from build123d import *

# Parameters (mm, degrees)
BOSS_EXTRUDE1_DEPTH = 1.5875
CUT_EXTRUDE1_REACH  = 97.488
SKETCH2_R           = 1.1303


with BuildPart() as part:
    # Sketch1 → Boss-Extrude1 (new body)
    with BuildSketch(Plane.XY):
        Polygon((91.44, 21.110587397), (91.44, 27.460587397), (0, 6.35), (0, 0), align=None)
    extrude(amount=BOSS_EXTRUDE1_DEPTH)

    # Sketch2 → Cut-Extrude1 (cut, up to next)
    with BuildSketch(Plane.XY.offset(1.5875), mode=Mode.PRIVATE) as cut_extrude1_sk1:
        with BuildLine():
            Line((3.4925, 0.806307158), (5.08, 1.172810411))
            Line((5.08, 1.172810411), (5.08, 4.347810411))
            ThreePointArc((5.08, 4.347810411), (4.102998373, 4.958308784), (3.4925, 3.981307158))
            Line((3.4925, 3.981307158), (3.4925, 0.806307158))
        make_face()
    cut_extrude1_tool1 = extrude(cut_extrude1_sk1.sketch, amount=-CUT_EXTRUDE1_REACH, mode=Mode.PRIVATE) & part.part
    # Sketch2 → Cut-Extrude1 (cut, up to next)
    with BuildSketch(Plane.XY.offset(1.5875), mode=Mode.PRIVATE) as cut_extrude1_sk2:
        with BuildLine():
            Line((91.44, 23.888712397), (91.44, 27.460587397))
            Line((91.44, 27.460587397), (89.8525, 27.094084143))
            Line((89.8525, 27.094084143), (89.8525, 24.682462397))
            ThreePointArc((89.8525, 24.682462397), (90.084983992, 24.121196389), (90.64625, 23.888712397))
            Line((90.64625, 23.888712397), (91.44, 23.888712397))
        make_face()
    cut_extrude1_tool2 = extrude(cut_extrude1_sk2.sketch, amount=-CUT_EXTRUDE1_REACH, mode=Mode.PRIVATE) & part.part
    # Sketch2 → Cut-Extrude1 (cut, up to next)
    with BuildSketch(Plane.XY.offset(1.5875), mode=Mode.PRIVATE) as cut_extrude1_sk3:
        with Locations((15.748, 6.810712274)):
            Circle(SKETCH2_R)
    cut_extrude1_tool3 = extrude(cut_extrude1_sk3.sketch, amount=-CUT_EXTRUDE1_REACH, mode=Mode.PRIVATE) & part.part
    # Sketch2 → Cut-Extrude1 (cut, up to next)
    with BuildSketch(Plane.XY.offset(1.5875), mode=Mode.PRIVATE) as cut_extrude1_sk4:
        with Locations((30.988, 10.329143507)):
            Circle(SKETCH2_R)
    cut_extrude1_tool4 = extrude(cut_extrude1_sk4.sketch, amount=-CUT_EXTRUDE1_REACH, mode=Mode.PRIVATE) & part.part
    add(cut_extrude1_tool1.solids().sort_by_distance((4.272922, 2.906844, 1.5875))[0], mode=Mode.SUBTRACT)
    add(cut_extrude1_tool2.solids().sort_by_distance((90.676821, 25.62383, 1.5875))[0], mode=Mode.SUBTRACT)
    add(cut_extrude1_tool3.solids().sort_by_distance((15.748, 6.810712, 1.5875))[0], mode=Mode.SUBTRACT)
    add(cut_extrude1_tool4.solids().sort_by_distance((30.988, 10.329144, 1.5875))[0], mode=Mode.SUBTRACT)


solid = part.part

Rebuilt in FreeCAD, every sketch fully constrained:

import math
import FreeCAD as App
import Part
import Sketcher

V = App.Vector
Q = App.Units.Quantity


def add_polygon(sketch, points):
    """Adds a closed chain of lines whose ends are joined by coincident constraints."""
    first, n = sketch.GeometryCount, len(points)
    for a, b in zip(points, points[1:] + points[:1]):
        sketch.addGeometry(Part.LineSegment(App.Vector(*a, 0), App.Vector(*b, 0)), False)
    for i in range(n):
        sketch.addConstraint(Sketcher.Constraint("Coincident", first + i, 2, first + (i + 1) % n, 1))

doc = App.newDocument("Part")
params = doc.addObject("Spreadsheet::Sheet", "Params")
for row, (alias, value) in enumerate([
    ("sketch1_height", "0.25 in"),
    ("pad1_length", "0.0625 in"),
    ("sketch2_height", "0.125 in"),
    ("sketch3_radius", "0.03125 in"),
    ("sketch3_width", "0.03125 in"),
    ("sketch3_height", "0.140625 in"),
    ("sketch4_diameter", "0.089 in"),
    ("sketch5_diameter", "0.089 in"),
], start=1):
    params.set(f"A{row}", alias)
    params.set(f"B{row}", "=" + value)
    params.setAlias(f"B{row}", alias)

body = doc.addObject("PartDesign::Body", "Body")

sketch1 = body.newObject("Sketcher::SketchObject", "Sketch")
sketch1.AttachmentSupport = (doc.getObject("XY_Plane"), [""])
sketch1.MapMode = "FlatFace"
add_polygon(sketch1, [(91.44, 21.110587), (91.44, 27.460587), (0, 6.35), (0, 0)])
sketch1.addConstraint([
    Sketcher.Constraint("Vertical", 0),
    Sketcher.Constraint("Vertical", 2),
    Sketcher.Constraint("Coincident", 2, 2, -1, 1),
    Sketcher.Constraint("Parallel", 1, 3),
    Sketcher.Constraint("Angle", 1, Q("-167 deg")),
    Sketcher.Constraint("DistanceY", 0, 1, 0, 2, Q("0.25 in")),
    Sketcher.Constraint("DistanceX", -1, 1, 0, 2, Q("3.6 in")),
])
sketch1.setExpression("Constraints[9]", "Params.sketch1_height")
pad1 = body.newObject("PartDesign::Pad", "Pad")
pad1.Profile = sketch1
pad1.setExpression("Length", "Params.pad1_length")

sketch2 = body.newObject("Sketcher::SketchObject", "Sketch001")
sketch2.AttachmentSupport = (doc.getObject("XY_Plane"), [""])
sketch2.MapMode = "FlatFace"
sketch2.AttachmentOffset = App.Placement(V(0, 0, 0.0625 * 25.4), App.Rotation())
sketch2.addGeometry([
    Part.LineSegment(V(3.4925, 0.806307, 0), V(5.08, 1.17281, 0)),
    Part.LineSegment(V(5.08, 1.17281, 0), V(5.08, 4.34781, 0)),
    Part.ArcOfCircle(Part.Circle(V(4.28625, 4.164559, 0), V(0, 0, 1), 0.814629), math.radians(13), math.radians(193)),
    Part.LineSegment(V(3.4925, 3.981307, 0), V(3.4925, 0.806307, 0)),
], False)
sketch2.addConstraint([
    Sketcher.Constraint("Coincident", 0, 2, 1, 1),
    Sketcher.Constraint("Coincident", 1, 2, 2, 1),
    Sketcher.Constraint("Coincident", 2, 2, 3, 1),
    Sketcher.Constraint("Coincident", 3, 2, 0, 1),
    Sketcher.Constraint("Vertical", 1),
    Sketcher.Constraint("Vertical", 3),
    Sketcher.Constraint("Equal", 1, 3),
    Sketcher.Constraint("Angle", 0, Q("13 deg")),
    Sketcher.Constraint("DistanceX", -1, 1, 0, 2, Q("0.2 in")),
    Sketcher.Constraint("DistanceY", 1, 1, 1, 2, Q("0.125 in")),
    Sketcher.Constraint("Radius", 2, Q("0.814629 mm")),
    Sketcher.Constraint("DistanceX", 2, 3, 0, 2, Q("0.03125 in")),
    Sketcher.Constraint("DistanceY", -1, 1, 2, 3, Q("4.164559 mm")),
])
sketch2.setExpression("Constraints[9]", "Params.sketch2_height")
pocket1 = body.newObject("PartDesign::Pocket", "Pocket")
pocket1.Profile = sketch2
pocket1.Type = "UpToFirst"

sketch3 = body.newObject("Sketcher::SketchObject", "Sketch002")
sketch3.AttachmentSupport = (doc.getObject("XY_Plane"), [""])
sketch3.MapMode = "FlatFace"
sketch3.AttachmentOffset = App.Placement(V(0, 0, 0.0625 * 25.4), App.Rotation())
sketch3.addGeometry([
    Part.LineSegment(V(91.44, 23.888712, 0), V(91.44, 27.460587, 0)),
    Part.LineSegment(V(91.44, 27.460587, 0), V(89.8525, 27.094084, 0)),
    Part.LineSegment(V(89.8525, 27.094084, 0), V(89.8525, 24.682462, 0)),
    Part.ArcOfCircle(Part.Circle(V(90.64625, 24.682462, 0), V(0, 0, 1), 0.79375), math.radians(180), math.radians(270)),
    Part.LineSegment(V(90.64625, 23.888712, 0), V(91.44, 23.888712, 0)),
], False)
sketch3.addConstraint([
    Sketcher.Constraint("Coincident", 0, 2, 1, 1),
    Sketcher.Constraint("Coincident", 1, 2, 2, 1),
    Sketcher.Constraint("Tangent", 2, 2, 3, 1),
    Sketcher.Constraint("Tangent", 3, 2, 4, 1),
    Sketcher.Constraint("Coincident", 4, 2, 0, 1),
    Sketcher.Constraint("Vertical", 0),
    Sketcher.Constraint("Vertical", 2),
    Sketcher.Constraint("Horizontal", 4),
    Sketcher.Constraint("Angle", 1, Q("-167 deg")),
    Sketcher.Constraint("Radius", 3, Q("0.03125 in")),
    Sketcher.Constraint("DistanceX", -1, 1, 0, 2, Q("3.6 in")),
    Sketcher.Constraint("DistanceX", 4, 1, 4, 2, Q("0.03125 in")),
    Sketcher.Constraint("DistanceY", 0, 1, 0, 2, Q("0.140625 in")),
    Sketcher.Constraint("DistanceY", -1, 1, 3, 3, Q("24.682462 mm")),
])
sketch3.setExpression("Constraints[9]", "Params.sketch3_radius")
sketch3.setExpression("Constraints[11]", "Params.sketch3_width")
sketch3.setExpression("Constraints[12]", "Params.sketch3_height")
pocket2 = body.newObject("PartDesign::Pocket", "Pocket001")
pocket2.Profile = sketch3
pocket2.Type = "UpToFirst"

sketch4 = body.newObject("Sketcher::SketchObject", "Sketch003")
sketch4.AttachmentSupport = (doc.getObject("XY_Plane"), [""])
sketch4.MapMode = "FlatFace"
sketch4.AttachmentOffset = App.Placement(V(0, 0, 0.0625 * 25.4), App.Rotation())
sketch4.addGeometry(Part.Circle(V(15.748, 6.810712, 0), V(0, 0, 1), 1.1303), False)
sketch4.addConstraint([
    Sketcher.Constraint("Diameter", 0, Q("0.089 in")),
    Sketcher.Constraint("DistanceX", -1, 1, 0, 3, Q("0.62 in")),
    Sketcher.Constraint("DistanceY", -1, 1, 0, 3, Q("6.810712 mm")),
])
sketch4.setExpression("Constraints[0]", "Params.sketch4_diameter")
pocket3 = body.newObject("PartDesign::Pocket", "Pocket002")
pocket3.Profile = sketch4
pocket3.Type = "UpToFirst"

sketch5 = body.newObject("Sketcher::SketchObject", "Sketch004")
sketch5.AttachmentSupport = (doc.getObject("XY_Plane"), [""])
sketch5.MapMode = "FlatFace"
sketch5.AttachmentOffset = App.Placement(V(0, 0, 0.0625 * 25.4), App.Rotation())
sketch5.addGeometry(Part.Circle(V(30.988, 10.329144, 0), V(0, 0, 1), 1.1303), False)
sketch5.addConstraint([
    Sketcher.Constraint("Diameter", 0, Q("0.089 in")),
    Sketcher.Constraint("DistanceX", -1, 1, 0, 3, Q("1.22 in")),
    Sketcher.Constraint("DistanceY", -1, 1, 0, 3, Q("10.329144 mm")),
])
sketch5.setExpression("Constraints[0]", "Params.sketch5_diameter")
pocket4 = body.newObject("PartDesign::Pocket", "Pocket003")
pocket4.Profile = sketch5
pocket4.Type = "UpToFirst"

doc.recompute()
